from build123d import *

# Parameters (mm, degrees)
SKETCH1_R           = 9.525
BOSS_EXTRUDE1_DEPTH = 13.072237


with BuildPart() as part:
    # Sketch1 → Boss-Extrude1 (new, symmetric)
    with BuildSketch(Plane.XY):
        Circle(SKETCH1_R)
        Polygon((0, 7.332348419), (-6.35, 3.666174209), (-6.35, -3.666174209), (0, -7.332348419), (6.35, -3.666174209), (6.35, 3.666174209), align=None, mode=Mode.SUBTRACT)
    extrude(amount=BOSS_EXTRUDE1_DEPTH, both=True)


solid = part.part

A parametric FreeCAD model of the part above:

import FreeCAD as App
import Part
import Sketcher

V = App.Vector
Q = App.Units.Quantity


def add_polygon(sketch, points):
    """Adds a closed chain of lines whose ends are joined by coincident constraints."""
    first, n = sketch.GeometryCount, len(points)
    for a, b in zip(points, points[1:] + points[:1]):
        sketch.addGeometry(Part.LineSegment(App.Vector(*a, 0), App.Vector(*b, 0)), False)
    for i in range(n):
        sketch.addConstraint(Sketcher.Constraint("Coincident", first + i, 2, first + (i + 1) % n, 1))

doc = App.newDocument("Part")
body = doc.addObject("PartDesign::Body", "Body")

sketch1 = body.newObject("Sketcher::SketchObject", "Sketch")
sketch1.AttachmentSupport = (doc.getObject("XY_Plane"), [""])
sketch1.MapMode = "FlatFace"
sketch1.addGeometry(Part.Circle(V(0, 0, 0), V(0, 0, 1), 9.525), False)
add_polygon(sketch1, [(-6.35, 3.666174), (0, 7.332348), (6.35, 3.666174), (6.35, -3.666174), (0, -7.332348), (-6.35, -3.666174)])
sketch1.addConstraint([
    Sketcher.Constraint("Vertical", 3),
    Sketcher.Constraint("Vertical", 6),
    Sketcher.Constraint("Coincident", 0, 3, -1, 1),
    Sketcher.Constraint("Symmetric", 1, 2, 4, 2, -1, 1),
    Sketcher.Constraint("Symmetric", 2, 2, 5, 2, -1, 1),
    Sketcher.Constraint("PointOnObject", 1, 2, -2),
    Sketcher.Constraint("Parallel", 1, 4),
    Sketcher.Constraint("Horizontal", 3, 2, 5, 2),
    Sketcher.Constraint("Diameter", 0, Q("0.75 in")),
    Sketcher.Constraint("Angle", 1, Q("30 deg")),
    Sketcher.Constraint("DistanceX", 5, 2, 3, 2, Q("0.5 in")),
    Sketcher.Constraint("DistanceY", 3, 2, 3, 1, Q("7.332348 mm")),
])
pad1 = body.newObject("PartDesign::Pad", "Pad")
pad1.Profile = sketch1
pad1.Length = 26.144474
pad1.Midplane = True

doc.recompute()
